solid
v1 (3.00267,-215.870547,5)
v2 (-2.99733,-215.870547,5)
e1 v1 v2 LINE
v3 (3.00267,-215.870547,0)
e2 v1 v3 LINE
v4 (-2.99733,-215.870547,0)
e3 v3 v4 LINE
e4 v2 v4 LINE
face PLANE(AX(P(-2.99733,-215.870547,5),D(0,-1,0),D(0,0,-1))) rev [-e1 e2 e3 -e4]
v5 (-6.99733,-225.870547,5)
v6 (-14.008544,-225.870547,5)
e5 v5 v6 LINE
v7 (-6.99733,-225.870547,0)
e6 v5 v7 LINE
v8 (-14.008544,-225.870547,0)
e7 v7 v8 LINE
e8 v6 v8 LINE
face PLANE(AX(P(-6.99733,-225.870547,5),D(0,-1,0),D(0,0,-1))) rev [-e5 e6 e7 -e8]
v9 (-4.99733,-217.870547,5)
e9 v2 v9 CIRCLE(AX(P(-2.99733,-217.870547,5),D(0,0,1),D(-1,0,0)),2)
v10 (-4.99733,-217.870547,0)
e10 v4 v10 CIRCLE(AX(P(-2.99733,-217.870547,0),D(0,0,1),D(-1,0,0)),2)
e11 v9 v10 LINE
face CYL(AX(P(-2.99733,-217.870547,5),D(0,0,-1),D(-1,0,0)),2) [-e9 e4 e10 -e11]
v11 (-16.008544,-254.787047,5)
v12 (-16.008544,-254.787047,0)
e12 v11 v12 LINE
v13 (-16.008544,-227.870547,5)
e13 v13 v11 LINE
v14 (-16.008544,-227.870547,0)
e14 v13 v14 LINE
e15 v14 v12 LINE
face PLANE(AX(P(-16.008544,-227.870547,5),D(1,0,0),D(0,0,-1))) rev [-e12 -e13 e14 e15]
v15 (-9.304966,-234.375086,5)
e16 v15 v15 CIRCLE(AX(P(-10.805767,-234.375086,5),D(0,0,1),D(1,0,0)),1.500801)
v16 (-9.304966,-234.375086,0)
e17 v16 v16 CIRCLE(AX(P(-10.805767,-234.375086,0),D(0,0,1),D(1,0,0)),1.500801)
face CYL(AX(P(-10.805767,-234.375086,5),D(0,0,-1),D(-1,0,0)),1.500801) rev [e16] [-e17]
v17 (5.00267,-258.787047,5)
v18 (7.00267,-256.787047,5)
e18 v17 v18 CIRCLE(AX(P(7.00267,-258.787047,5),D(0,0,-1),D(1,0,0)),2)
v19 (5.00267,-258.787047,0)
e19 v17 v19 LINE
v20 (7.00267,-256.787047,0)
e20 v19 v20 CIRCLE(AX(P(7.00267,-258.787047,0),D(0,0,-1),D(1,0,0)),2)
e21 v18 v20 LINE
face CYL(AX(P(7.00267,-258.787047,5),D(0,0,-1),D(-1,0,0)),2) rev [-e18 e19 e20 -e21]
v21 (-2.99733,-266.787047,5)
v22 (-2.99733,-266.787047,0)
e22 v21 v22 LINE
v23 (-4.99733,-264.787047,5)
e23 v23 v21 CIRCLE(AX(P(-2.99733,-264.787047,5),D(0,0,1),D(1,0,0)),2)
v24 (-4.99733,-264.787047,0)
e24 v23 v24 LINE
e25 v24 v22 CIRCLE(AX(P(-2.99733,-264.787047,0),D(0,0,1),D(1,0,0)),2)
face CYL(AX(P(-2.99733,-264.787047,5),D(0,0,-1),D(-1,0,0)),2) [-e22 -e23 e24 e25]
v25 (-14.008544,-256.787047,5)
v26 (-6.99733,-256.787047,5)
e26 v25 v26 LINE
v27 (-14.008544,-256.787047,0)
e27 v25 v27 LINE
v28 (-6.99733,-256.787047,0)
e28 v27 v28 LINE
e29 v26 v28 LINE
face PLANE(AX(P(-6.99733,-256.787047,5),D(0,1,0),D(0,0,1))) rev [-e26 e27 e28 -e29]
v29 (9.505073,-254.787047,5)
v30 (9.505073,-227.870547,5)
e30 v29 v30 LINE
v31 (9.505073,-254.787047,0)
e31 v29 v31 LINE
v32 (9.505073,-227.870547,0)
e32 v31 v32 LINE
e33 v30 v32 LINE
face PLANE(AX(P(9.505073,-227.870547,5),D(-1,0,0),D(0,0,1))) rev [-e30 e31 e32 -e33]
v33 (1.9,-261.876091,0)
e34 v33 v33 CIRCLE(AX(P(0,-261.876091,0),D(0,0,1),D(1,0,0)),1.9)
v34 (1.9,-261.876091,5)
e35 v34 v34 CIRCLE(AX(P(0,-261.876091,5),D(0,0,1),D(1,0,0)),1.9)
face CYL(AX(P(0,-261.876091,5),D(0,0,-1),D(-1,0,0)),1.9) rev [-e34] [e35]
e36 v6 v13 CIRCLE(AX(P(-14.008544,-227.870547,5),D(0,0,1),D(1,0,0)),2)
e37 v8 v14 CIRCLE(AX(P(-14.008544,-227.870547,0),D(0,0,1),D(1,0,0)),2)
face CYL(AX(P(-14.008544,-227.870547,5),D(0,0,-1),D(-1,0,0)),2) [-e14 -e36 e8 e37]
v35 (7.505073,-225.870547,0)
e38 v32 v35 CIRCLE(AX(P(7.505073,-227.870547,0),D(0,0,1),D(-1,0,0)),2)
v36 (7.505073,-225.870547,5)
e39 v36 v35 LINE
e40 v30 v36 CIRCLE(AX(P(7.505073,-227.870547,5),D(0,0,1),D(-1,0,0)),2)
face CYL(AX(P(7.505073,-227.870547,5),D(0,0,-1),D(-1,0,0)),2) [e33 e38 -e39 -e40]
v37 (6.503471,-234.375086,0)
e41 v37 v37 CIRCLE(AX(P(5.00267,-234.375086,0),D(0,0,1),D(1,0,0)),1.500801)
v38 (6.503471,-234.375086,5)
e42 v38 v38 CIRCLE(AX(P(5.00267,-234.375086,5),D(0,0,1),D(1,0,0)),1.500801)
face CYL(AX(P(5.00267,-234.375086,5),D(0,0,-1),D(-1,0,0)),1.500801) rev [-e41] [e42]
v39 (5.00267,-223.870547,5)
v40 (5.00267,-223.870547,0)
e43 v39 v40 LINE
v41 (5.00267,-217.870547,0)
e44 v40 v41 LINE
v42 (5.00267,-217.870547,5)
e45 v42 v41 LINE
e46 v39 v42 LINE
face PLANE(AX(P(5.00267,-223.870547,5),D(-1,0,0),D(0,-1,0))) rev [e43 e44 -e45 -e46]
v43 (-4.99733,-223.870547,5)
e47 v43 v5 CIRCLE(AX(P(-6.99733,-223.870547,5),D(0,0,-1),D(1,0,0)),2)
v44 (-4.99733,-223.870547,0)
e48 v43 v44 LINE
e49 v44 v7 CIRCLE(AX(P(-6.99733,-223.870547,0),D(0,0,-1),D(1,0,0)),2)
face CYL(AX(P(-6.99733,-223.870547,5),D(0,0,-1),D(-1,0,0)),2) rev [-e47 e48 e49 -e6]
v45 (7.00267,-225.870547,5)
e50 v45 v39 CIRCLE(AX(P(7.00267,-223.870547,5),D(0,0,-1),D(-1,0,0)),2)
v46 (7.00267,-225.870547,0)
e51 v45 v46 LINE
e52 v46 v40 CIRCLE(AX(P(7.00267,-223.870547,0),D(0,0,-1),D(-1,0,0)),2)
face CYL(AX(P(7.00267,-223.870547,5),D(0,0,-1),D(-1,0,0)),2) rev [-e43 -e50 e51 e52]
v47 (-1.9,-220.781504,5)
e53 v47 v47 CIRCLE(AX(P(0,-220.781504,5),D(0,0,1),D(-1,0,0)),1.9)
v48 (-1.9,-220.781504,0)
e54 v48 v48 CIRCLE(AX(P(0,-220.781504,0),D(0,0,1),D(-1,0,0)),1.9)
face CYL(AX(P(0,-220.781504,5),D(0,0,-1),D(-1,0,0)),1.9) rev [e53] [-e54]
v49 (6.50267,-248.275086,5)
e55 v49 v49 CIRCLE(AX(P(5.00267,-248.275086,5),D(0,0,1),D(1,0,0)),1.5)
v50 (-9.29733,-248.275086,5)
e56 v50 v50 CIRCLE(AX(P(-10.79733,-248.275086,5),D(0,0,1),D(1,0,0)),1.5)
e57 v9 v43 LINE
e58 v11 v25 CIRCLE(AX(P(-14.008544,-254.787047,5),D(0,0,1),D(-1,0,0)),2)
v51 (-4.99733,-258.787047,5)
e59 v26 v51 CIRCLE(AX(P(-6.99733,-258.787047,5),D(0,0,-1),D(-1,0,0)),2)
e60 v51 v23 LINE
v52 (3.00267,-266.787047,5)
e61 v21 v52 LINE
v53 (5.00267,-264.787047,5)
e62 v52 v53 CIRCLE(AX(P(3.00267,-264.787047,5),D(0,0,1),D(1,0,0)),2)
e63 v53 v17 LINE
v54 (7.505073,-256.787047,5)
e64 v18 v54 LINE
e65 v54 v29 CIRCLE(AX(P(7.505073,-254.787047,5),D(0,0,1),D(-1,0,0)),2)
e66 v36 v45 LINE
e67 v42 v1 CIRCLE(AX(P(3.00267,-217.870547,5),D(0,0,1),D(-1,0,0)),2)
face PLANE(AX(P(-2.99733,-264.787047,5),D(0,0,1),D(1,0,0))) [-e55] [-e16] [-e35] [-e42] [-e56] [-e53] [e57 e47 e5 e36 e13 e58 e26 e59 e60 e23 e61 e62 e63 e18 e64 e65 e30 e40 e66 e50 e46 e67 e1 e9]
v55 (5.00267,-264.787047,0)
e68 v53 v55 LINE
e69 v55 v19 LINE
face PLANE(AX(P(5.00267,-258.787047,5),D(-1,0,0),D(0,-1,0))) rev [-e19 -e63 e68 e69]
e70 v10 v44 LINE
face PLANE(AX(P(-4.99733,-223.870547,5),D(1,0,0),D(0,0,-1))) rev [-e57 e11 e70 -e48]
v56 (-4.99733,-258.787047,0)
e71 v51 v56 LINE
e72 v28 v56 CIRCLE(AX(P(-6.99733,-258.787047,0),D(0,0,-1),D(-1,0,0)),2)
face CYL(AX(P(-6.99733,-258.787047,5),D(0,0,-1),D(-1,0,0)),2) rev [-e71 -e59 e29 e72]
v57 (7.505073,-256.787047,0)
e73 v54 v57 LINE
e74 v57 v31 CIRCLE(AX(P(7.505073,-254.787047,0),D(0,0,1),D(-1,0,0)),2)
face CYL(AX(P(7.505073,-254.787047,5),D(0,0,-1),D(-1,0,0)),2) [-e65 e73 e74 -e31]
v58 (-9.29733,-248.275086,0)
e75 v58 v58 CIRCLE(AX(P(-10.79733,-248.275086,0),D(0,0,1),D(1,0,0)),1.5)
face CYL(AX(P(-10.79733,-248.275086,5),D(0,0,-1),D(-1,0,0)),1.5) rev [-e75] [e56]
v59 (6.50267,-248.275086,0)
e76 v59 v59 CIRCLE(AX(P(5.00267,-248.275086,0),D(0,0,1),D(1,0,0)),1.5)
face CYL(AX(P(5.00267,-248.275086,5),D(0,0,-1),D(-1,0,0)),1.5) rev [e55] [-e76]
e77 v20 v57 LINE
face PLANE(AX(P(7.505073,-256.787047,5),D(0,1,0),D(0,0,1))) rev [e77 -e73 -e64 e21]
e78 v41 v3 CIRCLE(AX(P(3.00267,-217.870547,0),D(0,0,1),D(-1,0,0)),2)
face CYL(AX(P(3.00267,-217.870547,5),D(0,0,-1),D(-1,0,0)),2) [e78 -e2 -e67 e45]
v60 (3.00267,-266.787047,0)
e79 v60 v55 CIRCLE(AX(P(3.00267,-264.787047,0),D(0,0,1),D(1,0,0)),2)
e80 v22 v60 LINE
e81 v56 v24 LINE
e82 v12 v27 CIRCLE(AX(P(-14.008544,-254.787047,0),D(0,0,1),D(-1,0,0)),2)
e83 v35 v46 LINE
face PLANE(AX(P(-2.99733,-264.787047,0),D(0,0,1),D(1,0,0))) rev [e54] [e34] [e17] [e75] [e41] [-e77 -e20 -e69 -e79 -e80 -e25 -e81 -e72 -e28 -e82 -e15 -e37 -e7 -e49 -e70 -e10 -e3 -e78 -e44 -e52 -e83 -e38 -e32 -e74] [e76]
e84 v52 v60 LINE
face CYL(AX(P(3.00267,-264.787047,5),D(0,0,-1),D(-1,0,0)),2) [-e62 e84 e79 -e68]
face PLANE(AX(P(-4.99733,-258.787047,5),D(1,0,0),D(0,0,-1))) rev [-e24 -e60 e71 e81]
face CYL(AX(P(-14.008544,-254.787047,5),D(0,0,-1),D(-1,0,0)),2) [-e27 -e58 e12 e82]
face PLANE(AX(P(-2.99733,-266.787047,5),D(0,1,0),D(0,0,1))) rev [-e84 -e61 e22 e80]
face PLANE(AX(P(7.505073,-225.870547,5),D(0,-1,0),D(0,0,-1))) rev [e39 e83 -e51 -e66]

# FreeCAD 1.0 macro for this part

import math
import FreeCAD as App
import Part
import Sketcher
from FreeCAD import Vector

doc = App.newDocument("Part")
body = doc.addObject("PartDesign::Body", "Body")

# Sketch on XY plane
sketch1 = body.newObject("Sketcher::SketchObject", "Sketch")
sketch1.AttachmentSupport = (doc.getObject("XY_Plane"), [""])
sketch1.MapMode = "FlatFace"
sketch1.addGeometry([
    Part.LineSegment(Vector(-14.008544, -256.787047, 0), Vector(-6.99733, -256.787047, 0)),  # 0
    Part.ArcOfCircle(Part.Circle(Vector(-6.99733, -258.787047, 0), Vector(0, 0, 1), 2), math.radians(0), math.radians(90)),  # 1
    Part.LineSegment(Vector(-4.99733, -258.787047, 0), Vector(-4.99733, -264.787047, 0)),  # 2
    Part.ArcOfCircle(Part.Circle(Vector(-2.99733, -264.787047, 0), Vector(0, 0, 1), 2), math.radians(180), math.radians(270)),  # 3
    Part.LineSegment(Vector(-2.99733, -266.787047, 0), Vector(3.00267, -266.787047, 0)),  # 4
    Part.ArcOfCircle(Part.Circle(Vector(3.00267, -264.787047, 0), Vector(0, 0, 1), 2), math.radians(-90), math.radians(0)),  # 5
    Part.LineSegment(Vector(5.00267, -264.787047, 0), Vector(5.00267, -258.787047, 0)),  # 6
    Part.ArcOfCircle(Part.Circle(Vector(7.00267, -258.787047, 0), Vector(0, 0, 1), 2), math.radians(90), math.radians(180)),  # 7
    Part.LineSegment(Vector(7.00267, -256.787047, 0), Vector(7.505073, -256.787047, 0)),  # 8
    Part.ArcOfCircle(Part.Circle(Vector(7.505073, -254.787047, 0), Vector(0, 0, 1), 2), math.radians(-90), math.radians(0)),  # 9
    Part.LineSegment(Vector(9.505073, -254.787047, 0), Vector(9.505073, -227.870547, 0)),  # 10
    Part.ArcOfCircle(Part.Circle(Vector(7.505073, -227.870547, 0), Vector(0, 0, 1), 2), math.radians(0), math.radians(90)),  # 11
    Part.LineSegment(Vector(7.505073, -225.870547, 0), Vector(7.00267, -225.870547, 0)),  # 12
    Part.ArcOfCircle(Part.Circle(Vector(7.00267, -223.870547, 0), Vector(0, 0, 1), 2), math.radians(180), math.radians(270)),  # 13
    Part.LineSegment(Vector(5.00267, -223.870547, 0), Vector(5.00267, -217.870547, 0)),  # 14
    Part.ArcOfCircle(Part.Circle(Vector(3.00267, -217.870547, 0), Vector(0, 0, 1), 2), math.radians(0), math.radians(90)),  # 15
    Part.LineSegment(Vector(3.00267, -215.870547, 0), Vector(-2.99733, -215.870547, 0)),  # 16
    Part.ArcOfCircle(Part.Circle(Vector(-2.99733, -217.870547, 0), Vector(0, 0, 1), 2), math.radians(90), math.radians(180)),  # 17
    Part.LineSegment(Vector(-4.99733, -217.870547, 0), Vector(-4.99733, -223.870547, 0)),  # 18
    Part.ArcOfCircle(Part.Circle(Vector(-6.99733, -223.870547, 0), Vector(0, 0, 1), 2), math.radians(-90), math.radians(0)),  # 19
    Part.LineSegment(Vector(-6.99733, -225.870547, 0), Vector(-14.008544, -225.870547, 0)),  # 20
    Part.ArcOfCircle(Part.Circle(Vector(-14.008544, -227.870547, 0), Vector(0, 0, 1), 2), math.radians(90), math.radians(180)),  # 21
    Part.LineSegment(Vector(-16.008544, -227.870547, 0), Vector(-16.008544, -254.787047, 0)),  # 22
    Part.ArcOfCircle(Part.Circle(Vector(-14.008544, -254.787047, 0), Vector(0, 0, 1), 2), math.radians(180), math.radians(270)),  # 23
    Part.Circle(Vector(0, -261.876091, 0), Vector(0, 0, 1), 1.9),  # 24
    Part.Circle(Vector(5.00267, -248.275086, 0), Vector(0, 0, 1), 1.5),  # 25
    Part.Circle(Vector(-10.79733, -248.275086, 0), Vector(0, 0, 1), 1.5),  # 26
    Part.Circle(Vector(5.00267, -234.375086, 0), Vector(0, 0, 1), 1.500801),  # 27
    Part.Circle(Vector(0, -220.781504, 0), Vector(0, 0, 1), 1.9),  # 28
    Part.Circle(Vector(-10.805767, -234.375086, 0), Vector(0, 0, 1), 1.500801),  # 29
], False)
sketch1.addConstraint([
    Sketcher.Constraint("Tangent", 0, 2, 1, 2),
    Sketcher.Constraint("Tangent", 1, 1, 2, 1),
    Sketcher.Constraint("Tangent", 2, 2, 3, 1),
    Sketcher.Constraint("Tangent", 3, 2, 4, 1),
    Sketcher.Constraint("Tangent", 4, 2, 5, 1),
    Sketcher.Constraint("Tangent", 5, 2, 6, 1),
    Sketcher.Constraint("Tangent", 6, 2, 7, 2),
    Sketcher.Constraint("Tangent", 7, 1, 8, 1),
    Sketcher.Constraint("Tangent", 8, 2, 9, 1),
    Sketcher.Constraint("Tangent", 9, 2, 10, 1),
    Sketcher.Constraint("Tangent", 10, 2, 11, 1),
    Sketcher.Constraint("Tangent", 11, 2, 12, 1),
    Sketcher.Constraint("Tangent", 12, 2, 13, 2),
    Sketcher.Constraint("Tangent", 13, 1, 14, 1),
    Sketcher.Constraint("Tangent", 14, 2, 15, 1),
    Sketcher.Constraint("Tangent", 15, 2, 16, 1),
    Sketcher.Constraint("Tangent", 16, 2, 17, 1),
    Sketcher.Constraint("Tangent", 17, 2, 18, 1),
    Sketcher.Constraint("Tangent", 18, 2, 19, 2),
    Sketcher.Constraint("Tangent", 19, 1, 20, 1),
    Sketcher.Constraint("Tangent", 20, 2, 21, 1),
    Sketcher.Constraint("Tangent", 21, 2, 22, 1),
    Sketcher.Constraint("Tangent", 22, 2, 23, 1),
    Sketcher.Constraint("Tangent", 23, 2, 0, 1),
    Sketcher.Constraint("Horizontal", 0),
    Sketcher.Constraint("Vertical", 2),
    Sketcher.Constraint("Horizontal", 4),
    Sketcher.Constraint("Vertical", 6),
    Sketcher.Constraint("Horizontal", 8),
    Sketcher.Constraint("Vertical", 10),
    Sketcher.Constraint("Horizontal", 12),
    Sketcher.Constraint("Vertical", 14),
    Sketcher.Constraint("Horizontal", 16),
    Sketcher.Constraint("Vertical", 18),
    Sketcher.Constraint("Horizontal", 20),
    Sketcher.Constraint("Vertical", 22),
    Sketcher.Constraint("Equal", 1, 3),
    Sketcher.Constraint("Equal", 3, 5),
    Sketcher.Constraint("Equal", 5, 7),
    Sketcher.Constraint("Equal", 7, 9),
    Sketcher.Constraint("Equal", 9, 11),
    Sketcher.Constraint("Equal", 11, 13),
    Sketcher.Constraint("Equal", 13, 15),
    Sketcher.Constraint("Equal", 15, 17),
    Sketcher.Constraint("Equal", 17, 19),
    Sketcher.Constraint("Equal", 19, 21),
    Sketcher.Constraint("Equal", 21, 23),
    Sketcher.Constraint("Equal", 25, 26),
    Sketcher.Constraint("Equal", 24, 28),
    Sketcher.Constraint("Equal", 27, 29),
    Sketcher.Constraint("PointOnObject", 24, 3, -2),
    Sketcher.Constraint("PointOnObject", 28, 3, -2),
    Sketcher.Constraint("Horizontal", 1, 3, 7, 3),
    Sketcher.Constraint("Horizontal", 13, 3, 19, 3),
    Sketcher.Constraint("Horizontal", 25, 3, 26, 3),
    Sketcher.Constraint("Horizontal", 27, 3, 29, 3),
    Sketcher.Constraint("Vertical", 7, 3, 13, 3),
    Sketcher.Constraint("Vertical", 3, 3, 17, 3),
    Sketcher.Constraint("Vertical", 25, 3, 27, 3),
    Sketcher.Constraint("Vertical", 27, 3, 5, 2),
    Sketcher.Constraint("Equal", 16, 2),
    Sketcher.Constraint("Equal", 6, 14),
    Sketcher.Constraint("Diameter", 25, 3.0),
    Sketcher.Constraint("Radius", 1, 2.0),
    Sketcher.Constraint("Diameter", 24, 3.8),
    Sketcher.Constraint("DistanceX", 4, 1, 4, 2, 6.0),
    Sketcher.Constraint("Diameter", 27, 3.001602),
    Sketcher.Constraint("DistanceX", 26, 3, 1, 3, 3.8),
    Sketcher.Constraint("DistanceY", 25, 3, 27, 3, 13.9),
    Sketcher.Constraint("DistanceY", 10, 1, 10, 2, 26.9165),
    Sketcher.Constraint("DistanceX", 0, 1, 0, 2, 7.011214),
    Sketcher.Constraint("DistanceX", 8, 1, 8, 2, 0.502403),
    Sketcher.Constraint("DistanceX", 1, 3, -1, 1, 6.99733),
    Sketcher.Constraint("DistanceY", 24, 3, -1, 1, 261.876091),
    Sketcher.Constraint("DistanceY", 9, 3, 25, 3, 6.511961),
    Sketcher.Constraint("DistanceY", 1, 3, -1, 1, 258.787047),
    Sketcher.Constraint("DistanceY", 28, 3, -1, 1, 220.781504),
    Sketcher.Constraint("DistanceX", 29, 3, -1, 1, 10.805767),
])
pad1 = body.newObject("PartDesign::Pad", "Pad")
pad1.Profile = sketch1
pad1.Length = 5

doc.recompute()
